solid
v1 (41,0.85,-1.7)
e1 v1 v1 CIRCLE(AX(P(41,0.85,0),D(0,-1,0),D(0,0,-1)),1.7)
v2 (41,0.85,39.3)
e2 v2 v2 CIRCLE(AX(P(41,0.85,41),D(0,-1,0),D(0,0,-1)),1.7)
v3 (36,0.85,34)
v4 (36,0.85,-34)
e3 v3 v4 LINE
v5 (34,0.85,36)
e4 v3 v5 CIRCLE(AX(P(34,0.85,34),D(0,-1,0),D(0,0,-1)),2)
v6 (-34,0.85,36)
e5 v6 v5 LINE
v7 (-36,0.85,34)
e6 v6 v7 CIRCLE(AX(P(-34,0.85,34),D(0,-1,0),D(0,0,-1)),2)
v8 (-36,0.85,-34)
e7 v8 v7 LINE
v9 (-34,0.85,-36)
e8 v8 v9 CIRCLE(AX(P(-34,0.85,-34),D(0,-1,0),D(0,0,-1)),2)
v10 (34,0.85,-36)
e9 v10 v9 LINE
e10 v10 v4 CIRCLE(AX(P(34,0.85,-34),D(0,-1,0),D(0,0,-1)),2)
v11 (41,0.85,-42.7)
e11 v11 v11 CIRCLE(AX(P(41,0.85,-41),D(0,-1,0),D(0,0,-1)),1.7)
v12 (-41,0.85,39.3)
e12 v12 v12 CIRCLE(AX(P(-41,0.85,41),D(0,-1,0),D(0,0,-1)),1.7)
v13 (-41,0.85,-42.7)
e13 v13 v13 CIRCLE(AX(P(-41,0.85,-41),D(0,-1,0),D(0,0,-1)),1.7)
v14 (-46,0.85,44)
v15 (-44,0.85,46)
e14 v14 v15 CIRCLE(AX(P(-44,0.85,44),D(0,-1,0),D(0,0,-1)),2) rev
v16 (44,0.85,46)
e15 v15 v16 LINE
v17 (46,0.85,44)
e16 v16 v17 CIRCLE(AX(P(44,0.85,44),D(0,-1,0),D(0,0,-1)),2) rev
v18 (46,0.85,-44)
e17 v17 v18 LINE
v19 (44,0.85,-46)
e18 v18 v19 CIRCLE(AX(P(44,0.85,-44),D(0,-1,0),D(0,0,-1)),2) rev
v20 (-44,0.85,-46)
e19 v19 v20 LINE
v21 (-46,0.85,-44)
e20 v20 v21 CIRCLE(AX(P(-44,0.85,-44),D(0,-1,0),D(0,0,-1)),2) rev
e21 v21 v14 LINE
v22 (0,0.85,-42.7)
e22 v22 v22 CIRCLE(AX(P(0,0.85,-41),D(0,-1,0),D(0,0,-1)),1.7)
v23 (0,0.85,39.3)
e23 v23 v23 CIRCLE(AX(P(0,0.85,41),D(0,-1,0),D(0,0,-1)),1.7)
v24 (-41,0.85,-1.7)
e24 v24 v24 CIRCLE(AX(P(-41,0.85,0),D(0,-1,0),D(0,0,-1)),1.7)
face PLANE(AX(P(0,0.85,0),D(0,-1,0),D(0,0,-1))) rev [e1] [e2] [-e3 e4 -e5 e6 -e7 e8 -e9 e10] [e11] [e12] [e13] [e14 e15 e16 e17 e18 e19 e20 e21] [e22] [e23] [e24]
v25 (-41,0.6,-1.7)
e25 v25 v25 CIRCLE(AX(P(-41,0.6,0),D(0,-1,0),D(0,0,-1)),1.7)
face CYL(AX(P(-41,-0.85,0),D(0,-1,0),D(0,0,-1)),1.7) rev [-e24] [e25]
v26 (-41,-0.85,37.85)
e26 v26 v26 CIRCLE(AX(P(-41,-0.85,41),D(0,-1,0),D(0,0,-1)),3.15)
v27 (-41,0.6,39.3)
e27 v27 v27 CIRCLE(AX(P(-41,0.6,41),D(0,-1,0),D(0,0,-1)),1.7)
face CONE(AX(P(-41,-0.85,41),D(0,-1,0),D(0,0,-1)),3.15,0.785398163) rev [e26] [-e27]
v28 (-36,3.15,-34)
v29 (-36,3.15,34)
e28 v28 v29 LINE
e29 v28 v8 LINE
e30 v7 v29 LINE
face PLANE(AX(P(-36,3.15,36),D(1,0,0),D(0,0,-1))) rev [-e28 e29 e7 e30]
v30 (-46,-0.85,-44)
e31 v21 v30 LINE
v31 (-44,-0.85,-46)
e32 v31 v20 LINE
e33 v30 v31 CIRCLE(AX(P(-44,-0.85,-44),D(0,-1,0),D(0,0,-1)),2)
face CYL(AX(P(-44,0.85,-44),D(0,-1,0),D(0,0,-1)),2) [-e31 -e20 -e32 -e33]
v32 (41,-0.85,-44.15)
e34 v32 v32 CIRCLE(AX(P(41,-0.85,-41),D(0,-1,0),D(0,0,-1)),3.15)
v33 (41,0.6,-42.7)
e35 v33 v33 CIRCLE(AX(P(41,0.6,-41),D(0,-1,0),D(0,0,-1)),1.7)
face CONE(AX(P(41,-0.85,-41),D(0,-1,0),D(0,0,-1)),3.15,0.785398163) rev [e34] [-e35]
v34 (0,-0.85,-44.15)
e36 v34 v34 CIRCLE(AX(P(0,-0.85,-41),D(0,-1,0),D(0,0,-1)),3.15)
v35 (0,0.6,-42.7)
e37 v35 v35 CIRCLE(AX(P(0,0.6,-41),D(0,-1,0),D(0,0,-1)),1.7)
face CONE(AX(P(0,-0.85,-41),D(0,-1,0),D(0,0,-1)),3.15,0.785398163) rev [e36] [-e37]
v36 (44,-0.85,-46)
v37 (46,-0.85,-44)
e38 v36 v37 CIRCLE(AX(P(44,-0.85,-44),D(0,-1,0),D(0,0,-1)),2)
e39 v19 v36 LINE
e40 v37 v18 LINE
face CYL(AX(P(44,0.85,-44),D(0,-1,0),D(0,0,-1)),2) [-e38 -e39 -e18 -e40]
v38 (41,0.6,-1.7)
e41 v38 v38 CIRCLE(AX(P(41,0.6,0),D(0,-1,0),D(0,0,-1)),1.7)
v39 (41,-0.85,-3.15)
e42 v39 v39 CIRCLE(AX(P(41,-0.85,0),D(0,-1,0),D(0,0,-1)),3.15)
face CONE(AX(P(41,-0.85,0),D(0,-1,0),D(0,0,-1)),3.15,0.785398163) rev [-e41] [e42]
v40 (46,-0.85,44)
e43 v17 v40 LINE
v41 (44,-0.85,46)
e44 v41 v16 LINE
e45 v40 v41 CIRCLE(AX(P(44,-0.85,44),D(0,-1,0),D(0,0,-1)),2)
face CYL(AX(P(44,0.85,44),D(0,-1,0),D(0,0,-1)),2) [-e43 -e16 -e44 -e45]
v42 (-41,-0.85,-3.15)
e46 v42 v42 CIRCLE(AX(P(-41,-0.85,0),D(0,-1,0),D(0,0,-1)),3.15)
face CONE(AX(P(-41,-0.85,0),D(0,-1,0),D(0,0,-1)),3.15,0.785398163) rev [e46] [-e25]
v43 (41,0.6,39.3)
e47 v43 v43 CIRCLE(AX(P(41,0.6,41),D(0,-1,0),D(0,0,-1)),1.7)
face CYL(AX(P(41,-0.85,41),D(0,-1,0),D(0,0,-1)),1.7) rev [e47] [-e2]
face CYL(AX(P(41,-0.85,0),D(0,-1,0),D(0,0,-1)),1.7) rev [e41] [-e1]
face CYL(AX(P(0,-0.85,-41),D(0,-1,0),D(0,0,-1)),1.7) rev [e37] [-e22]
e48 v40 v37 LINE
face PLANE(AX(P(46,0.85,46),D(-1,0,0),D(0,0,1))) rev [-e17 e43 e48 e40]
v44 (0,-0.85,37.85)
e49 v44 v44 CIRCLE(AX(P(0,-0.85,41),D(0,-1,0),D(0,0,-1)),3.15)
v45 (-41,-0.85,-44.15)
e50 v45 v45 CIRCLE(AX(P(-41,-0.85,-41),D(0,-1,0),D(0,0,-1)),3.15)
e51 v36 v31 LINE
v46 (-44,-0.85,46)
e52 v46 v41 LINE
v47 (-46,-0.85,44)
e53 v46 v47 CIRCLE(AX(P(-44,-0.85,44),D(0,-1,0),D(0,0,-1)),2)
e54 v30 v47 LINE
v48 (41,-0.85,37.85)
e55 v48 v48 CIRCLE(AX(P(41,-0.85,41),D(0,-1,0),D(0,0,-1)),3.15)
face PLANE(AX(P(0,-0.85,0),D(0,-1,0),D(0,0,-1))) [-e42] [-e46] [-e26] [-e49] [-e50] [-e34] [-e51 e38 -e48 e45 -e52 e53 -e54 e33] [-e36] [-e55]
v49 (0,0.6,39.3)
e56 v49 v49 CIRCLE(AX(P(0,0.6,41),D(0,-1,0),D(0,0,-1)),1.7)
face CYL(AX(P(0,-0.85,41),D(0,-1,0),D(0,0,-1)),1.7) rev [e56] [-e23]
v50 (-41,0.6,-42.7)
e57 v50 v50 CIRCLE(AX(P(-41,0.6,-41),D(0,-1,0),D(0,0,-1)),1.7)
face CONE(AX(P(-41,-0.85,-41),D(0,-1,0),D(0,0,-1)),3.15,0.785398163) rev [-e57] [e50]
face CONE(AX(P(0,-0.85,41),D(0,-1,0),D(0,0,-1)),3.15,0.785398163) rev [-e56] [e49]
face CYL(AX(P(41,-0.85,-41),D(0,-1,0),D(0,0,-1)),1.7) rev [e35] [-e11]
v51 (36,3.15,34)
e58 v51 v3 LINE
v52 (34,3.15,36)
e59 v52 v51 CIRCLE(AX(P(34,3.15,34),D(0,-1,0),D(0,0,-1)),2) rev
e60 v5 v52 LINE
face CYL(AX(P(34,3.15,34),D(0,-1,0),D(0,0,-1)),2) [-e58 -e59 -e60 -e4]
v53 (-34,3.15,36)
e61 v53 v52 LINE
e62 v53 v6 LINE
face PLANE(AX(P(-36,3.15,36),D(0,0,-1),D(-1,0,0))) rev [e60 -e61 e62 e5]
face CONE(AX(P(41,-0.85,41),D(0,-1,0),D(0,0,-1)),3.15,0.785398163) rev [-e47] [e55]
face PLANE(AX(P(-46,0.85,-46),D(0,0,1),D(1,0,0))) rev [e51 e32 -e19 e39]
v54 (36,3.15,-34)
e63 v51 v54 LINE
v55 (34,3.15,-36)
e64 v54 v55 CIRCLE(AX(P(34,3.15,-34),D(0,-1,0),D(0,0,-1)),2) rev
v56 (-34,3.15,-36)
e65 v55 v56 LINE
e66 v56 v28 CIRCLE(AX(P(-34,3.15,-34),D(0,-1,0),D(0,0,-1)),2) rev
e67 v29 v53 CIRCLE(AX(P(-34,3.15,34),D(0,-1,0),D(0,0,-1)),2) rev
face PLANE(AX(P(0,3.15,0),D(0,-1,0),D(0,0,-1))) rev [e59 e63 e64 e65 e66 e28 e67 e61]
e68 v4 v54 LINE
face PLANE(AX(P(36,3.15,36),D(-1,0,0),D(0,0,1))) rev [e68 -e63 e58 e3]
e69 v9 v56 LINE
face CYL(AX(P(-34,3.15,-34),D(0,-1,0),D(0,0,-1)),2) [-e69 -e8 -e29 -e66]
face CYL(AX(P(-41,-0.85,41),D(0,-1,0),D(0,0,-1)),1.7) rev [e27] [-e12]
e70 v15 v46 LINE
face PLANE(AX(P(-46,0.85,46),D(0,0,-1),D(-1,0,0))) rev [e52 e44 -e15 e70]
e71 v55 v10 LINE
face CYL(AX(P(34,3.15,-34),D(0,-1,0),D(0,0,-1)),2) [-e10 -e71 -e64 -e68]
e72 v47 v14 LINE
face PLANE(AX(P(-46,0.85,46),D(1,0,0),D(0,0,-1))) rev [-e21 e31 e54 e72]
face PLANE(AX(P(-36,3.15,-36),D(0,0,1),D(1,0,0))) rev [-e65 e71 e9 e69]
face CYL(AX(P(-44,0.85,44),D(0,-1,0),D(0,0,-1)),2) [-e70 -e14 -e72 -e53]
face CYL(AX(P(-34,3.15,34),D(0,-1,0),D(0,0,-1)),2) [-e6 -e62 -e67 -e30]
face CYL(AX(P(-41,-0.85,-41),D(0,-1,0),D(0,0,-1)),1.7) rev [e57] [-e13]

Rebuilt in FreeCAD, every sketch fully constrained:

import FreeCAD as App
import Part
import Sketcher

V = App.Vector
Q = App.Units.Quantity


def edges_at(feature, points):
    """Names of the edges that pass closest to the given points."""
    edges = feature.Shape.Edges
    near = lambda p: min(range(len(edges)), key=lambda i: edges[i].distToShape(Part.Vertex(*p))[0])
    return sorted({f"Edge{near(p) + 1}" for p in points})


def add_polygon(sketch, points):
    """Adds a closed chain of lines whose ends are joined by coincident constraints."""
    first, n = sketch.GeometryCount, len(points)
    for a, b in zip(points, points[1:] + points[:1]):
        sketch.addGeometry(Part.LineSegment(App.Vector(*a, 0), App.Vector(*b, 0)), False)
    for i in range(n):
        sketch.addConstraint(Sketcher.Constraint("Coincident", first + i, 2, first + (i + 1) % n, 1))

doc = App.newDocument("Part")
body = doc.addObject("PartDesign::Body", "Body")

sketch1 = body.newObject("Sketcher::SketchObject", "Sketch")
sketch1.AttachmentSupport = (doc.getObject("XZ_Plane"), [""])
sketch1.MapMode = "FlatFace"
add_polygon(sketch1, [(-46, -46), (-46, 46), (46, 46), (46, -46)])
sketch1.addConstraint(Sketcher.Constraint("Vertical", 0))
sketch1.addConstraint(Sketcher.Constraint("Horizontal", 1))
sketch1.addConstraint(Sketcher.Constraint("Vertical", 2))
sketch1.addConstraint(Sketcher.Constraint("Horizontal", 3))
sketch1.addConstraint(Sketcher.Constraint("Symmetric", 0, 2, 2, 2, -1, 1))
sketch1.addConstraint(Sketcher.Constraint("Equal", 3, 0))
sketch1.addConstraint(Sketcher.Constraint("DistanceX", 1, 1, 1, 2, Q("92 mm")))
pad1 = body.newObject("PartDesign::Pad", "Pad")
pad1.Profile = sketch1
pad1.Length = 1.7
pad1.Midplane = True

sketch2 = body.newObject("Sketcher::SketchObject", "Sketch001")
sketch2.AttachmentSupport = (doc.getObject("XZ_Plane"), [""])
sketch2.MapMode = "FlatFace"
sketch2.AttachmentOffset = App.Placement(V(0, 0, -0.85), App.Rotation())
add_polygon(sketch2, [(-36, -36), (-36, 36), (36, 36), (36, -36)])
sketch2.addConstraint(Sketcher.Constraint("Vertical", 0))
sketch2.addConstraint(Sketcher.Constraint("Horizontal", 1))
sketch2.addConstraint(Sketcher.Constraint("Vertical", 2))
sketch2.addConstraint(Sketcher.Constraint("Horizontal", 3))
sketch2.addConstraint(Sketcher.Constraint("Symmetric", 0, 2, 2, 2, -1, 1))
sketch2.addConstraint(Sketcher.Constraint("Equal", 3, 0))
sketch2.addConstraint(Sketcher.Constraint("DistanceX", 1, 1, 1, 2, Q("72 mm")))
pad2 = body.newObject("PartDesign::Pad", "Pad001")
pad2.Profile = sketch2
pad2.Length = 2.3
pad2.Reversed = True

sketch3 = body.newObject("Sketcher::SketchObject", "Sketch002")
sketch3.AttachmentSupport = (doc.getObject("XZ_Plane"), [""])
sketch3.MapMode = "FlatFace"
sketch3.AttachmentOffset = App.Placement(V(0, 0, 0.85), App.Rotation())
sketch3.addGeometry(Part.Circle(V(-41, 41, 0), V(0, 0, 1), 1.7), False)
sketch3.addGeometry(Part.Circle(V(0, 41, 0), V(0, 0, 1), 1.7), False)
sketch3.addGeometry(Part.Circle(V(41, 41, 0), V(0, 0, 1), 1.7), False)
sketch3.addGeometry(Part.Circle(V(41, 0, 0), V(0, 0, 1), 1.7), False)
sketch3.addGeometry(Part.Circle(V(41, -41, 0), V(0, 0, 1), 1.7), False)
sketch3.addGeometry(Part.Circle(V(0, -41, 0), V(0, 0, 1), 1.7), False)
sketch3.addGeometry(Part.Circle(V(-41, -41, 0), V(0, 0, 1), 1.7), False)
sketch3.addGeometry(Part.Circle(V(-41, 0, 0), V(0, 0, 1), 1.7), False)
sketch3.addConstraint(Sketcher.Constraint("Equal", 0, 1))
sketch3.addConstraint(Sketcher.Constraint("Equal", 1, 2))
sketch3.addConstraint(Sketcher.Constraint("Equal", 2, 3))
sketch3.addConstraint(Sketcher.Constraint("Equal", 3, 4))
sketch3.addConstraint(Sketcher.Constraint("Equal", 4, 5))
sketch3.addConstraint(Sketcher.Constraint("Equal", 5, 6))
sketch3.addConstraint(Sketcher.Constraint("Equal", 6, 7))
sketch3.addConstraint(Sketcher.Constraint("Symmetric", 0, 3, 4, 3, -1, 1))
sketch3.addConstraint(Sketcher.Constraint("Symmetric", 1, 3, 5, 3, -1, 1))
sketch3.addConstraint(Sketcher.Constraint("Symmetric", 2, 3, 6, 3, -1, 1))
sketch3.addConstraint(Sketcher.Constraint("Symmetric", 3, 3, 7, 3, -1, 1))
sketch3.addConstraint(Sketcher.Constraint("Symmetric", 0, 3, 2, 3, -2))
sketch3.addConstraint(Sketcher.Constraint("PointOnObject", 1, 3, -2))
sketch3.addConstraint(Sketcher.Constraint("PointOnObject", 3, 3, -1))
sketch3.addConstraint(Sketcher.Constraint("Horizontal", 0, 3, 1, 3))
sketch3.addConstraint(Sketcher.Constraint("Vertical", 2, 3, 3, 3))
sketch3.addConstraint(Sketcher.Constraint("Diameter", 0, Q("3.4 mm")))
sketch3.addConstraint(Sketcher.Constraint("DistanceX", 0, 3, -1, 1, Q("41 mm")))
sketch3.addConstraint(Sketcher.Constraint("DistanceY", -1, 1, 0, 3, Q("41 mm")))
doc.recompute()
hole = body.newObject("PartDesign::Hole", "Hole")
hole.Profile = sketch3
hole.ThreadType = "None"
hole.Diameter = 3.4
hole.DepthType = "ThroughAll"
hole.HoleCutType = "Countersink"
hole.HoleCutDiameter = 6.3
hole.HoleCutCountersinkAngle = 90
doc.recompute()

fillet = body.newObject("PartDesign::Fillet", "Fillet")
fillet.Base = (hole, edges_at(hole, [
    (36, 2, 36),
    (36, 2, -36),
    (-36, 2, -36),
    (-36, 2, 36),
    (46, 0, 46),
    (-46, 0, 46),
    (-46, 0, -46),
    (46, 0, -46),
]))
fillet.Radius = 2

doc.recompute()
